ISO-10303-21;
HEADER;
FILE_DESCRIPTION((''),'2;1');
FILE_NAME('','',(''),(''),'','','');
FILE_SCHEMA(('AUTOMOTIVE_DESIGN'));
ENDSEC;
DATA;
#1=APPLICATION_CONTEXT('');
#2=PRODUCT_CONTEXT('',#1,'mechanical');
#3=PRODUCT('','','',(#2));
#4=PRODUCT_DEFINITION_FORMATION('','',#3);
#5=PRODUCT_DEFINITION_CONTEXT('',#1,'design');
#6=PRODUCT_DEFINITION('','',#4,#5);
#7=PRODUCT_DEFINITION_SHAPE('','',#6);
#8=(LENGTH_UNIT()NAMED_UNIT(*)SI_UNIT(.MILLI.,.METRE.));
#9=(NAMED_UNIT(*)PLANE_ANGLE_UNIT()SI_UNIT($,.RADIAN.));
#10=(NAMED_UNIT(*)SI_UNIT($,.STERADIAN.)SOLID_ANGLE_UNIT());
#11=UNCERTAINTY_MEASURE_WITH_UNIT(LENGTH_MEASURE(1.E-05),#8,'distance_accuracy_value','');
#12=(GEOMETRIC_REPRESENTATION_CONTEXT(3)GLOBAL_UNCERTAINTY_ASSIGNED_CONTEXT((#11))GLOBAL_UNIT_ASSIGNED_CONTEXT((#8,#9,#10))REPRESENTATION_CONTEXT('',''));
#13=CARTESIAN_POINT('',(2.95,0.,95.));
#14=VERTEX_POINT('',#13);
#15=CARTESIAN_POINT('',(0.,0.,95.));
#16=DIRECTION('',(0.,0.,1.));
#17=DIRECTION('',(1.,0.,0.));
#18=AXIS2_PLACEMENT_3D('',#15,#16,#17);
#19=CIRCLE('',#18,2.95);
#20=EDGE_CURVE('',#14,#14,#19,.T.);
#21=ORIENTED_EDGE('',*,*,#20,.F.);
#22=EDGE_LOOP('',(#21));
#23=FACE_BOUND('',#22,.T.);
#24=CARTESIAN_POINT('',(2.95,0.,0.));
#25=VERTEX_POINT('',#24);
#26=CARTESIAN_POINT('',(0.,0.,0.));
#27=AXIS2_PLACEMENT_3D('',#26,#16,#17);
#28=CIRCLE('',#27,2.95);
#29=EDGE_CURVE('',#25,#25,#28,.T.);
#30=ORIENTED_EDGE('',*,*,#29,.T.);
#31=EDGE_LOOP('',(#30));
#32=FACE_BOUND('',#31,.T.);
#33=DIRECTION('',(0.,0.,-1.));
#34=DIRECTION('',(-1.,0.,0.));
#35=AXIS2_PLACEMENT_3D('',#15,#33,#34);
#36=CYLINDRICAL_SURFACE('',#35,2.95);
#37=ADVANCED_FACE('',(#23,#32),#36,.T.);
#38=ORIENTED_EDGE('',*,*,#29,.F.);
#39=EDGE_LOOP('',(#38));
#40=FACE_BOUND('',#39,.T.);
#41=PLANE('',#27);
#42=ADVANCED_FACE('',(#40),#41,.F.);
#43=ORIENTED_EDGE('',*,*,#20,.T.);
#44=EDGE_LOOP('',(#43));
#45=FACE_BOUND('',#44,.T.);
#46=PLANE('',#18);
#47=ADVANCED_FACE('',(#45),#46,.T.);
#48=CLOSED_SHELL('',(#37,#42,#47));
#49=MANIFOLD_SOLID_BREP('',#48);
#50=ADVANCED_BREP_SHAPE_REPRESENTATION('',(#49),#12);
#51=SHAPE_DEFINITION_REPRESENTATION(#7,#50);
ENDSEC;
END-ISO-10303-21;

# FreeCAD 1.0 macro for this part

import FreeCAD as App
import Part
import Sketcher

V = App.Vector
Q = App.Units.Quantity

doc = App.newDocument("Part")
body = doc.addObject("PartDesign::Body", "Body")

# Sketch on XY plane
sketch1 = body.newObject("Sketcher::SketchObject", "Sketch")
sketch1.AttachmentSupport = (doc.getObject("XY_Plane"), [""])
sketch1.MapMode = "FlatFace"
sketch1.addGeometry(Part.Circle(V(0, 0, 0), V(0, 0, 1), 2.95), False)
sketch1.addConstraint([
    Sketcher.Constraint("Coincident", 0, 3, -1, 1),
    Sketcher.Constraint("Diameter", 0, Q("5.9 mm")),
])
pad1 = body.newObject("PartDesign::Pad", "Pad")
pad1.Profile = sketch1
pad1.Length = 95

doc.recompute()
